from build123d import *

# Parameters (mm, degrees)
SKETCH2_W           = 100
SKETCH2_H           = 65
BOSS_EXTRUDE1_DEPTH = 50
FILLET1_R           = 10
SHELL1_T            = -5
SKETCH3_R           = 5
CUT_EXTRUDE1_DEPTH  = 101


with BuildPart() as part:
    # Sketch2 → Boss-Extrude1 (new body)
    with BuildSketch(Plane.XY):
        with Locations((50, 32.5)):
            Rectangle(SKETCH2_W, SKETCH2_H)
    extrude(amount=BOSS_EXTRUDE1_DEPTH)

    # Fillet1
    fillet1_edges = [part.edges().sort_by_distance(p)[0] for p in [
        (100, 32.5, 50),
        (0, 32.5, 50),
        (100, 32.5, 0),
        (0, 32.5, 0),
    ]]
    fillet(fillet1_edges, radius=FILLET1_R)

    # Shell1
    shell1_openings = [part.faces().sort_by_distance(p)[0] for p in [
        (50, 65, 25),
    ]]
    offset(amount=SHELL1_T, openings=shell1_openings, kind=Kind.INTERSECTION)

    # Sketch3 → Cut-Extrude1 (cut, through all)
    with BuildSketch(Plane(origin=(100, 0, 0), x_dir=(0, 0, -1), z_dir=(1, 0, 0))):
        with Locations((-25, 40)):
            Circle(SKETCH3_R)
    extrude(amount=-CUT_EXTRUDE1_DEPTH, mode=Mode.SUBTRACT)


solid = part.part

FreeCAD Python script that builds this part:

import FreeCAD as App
import Part
import Sketcher

V = App.Vector
Q = App.Units.Quantity


def edges_at(feature, points):
    """Names of the edges that pass closest to the given points."""
    edges = feature.Shape.Edges
    near = lambda p: min(range(len(edges)), key=lambda i: edges[i].distToShape(Part.Vertex(*p))[0])
    return sorted({f"Edge{near(p) + 1}" for p in points})


def faces_at(feature, points):
    """Names of the faces that lie closest to the given points."""
    faces = feature.Shape.Faces
    near = lambda p: min(range(len(faces)), key=lambda i: faces[i].distToShape(Part.Vertex(*p))[0])
    return sorted({f"Face{near(p) + 1}" for p in points})


def add_polygon(sketch, points):
    """Adds a closed chain of lines whose ends are joined by coincident constraints."""
    first, n = sketch.GeometryCount, len(points)
    for a, b in zip(points, points[1:] + points[:1]):
        sketch.addGeometry(Part.LineSegment(App.Vector(*a, 0), App.Vector(*b, 0)), False)
    for i in range(n):
        sketch.addConstraint(Sketcher.Constraint("Coincident", first + i, 2, first + (i + 1) % n, 1))

doc = App.newDocument("Part")
params = doc.addObject("Spreadsheet::Sheet", "Params")
for row, (alias, value) in enumerate([
    ("sketch1_width", "100 mm"),
    ("sketch1_height", "65 mm"),
    ("pad1_length", "50 mm"),
    ("fillet_radius", "10 mm"),
    ("thickness_wall", "5 mm"),
    ("sketch2_diameter", "10 mm"),
], start=1):
    params.set(f"A{row}", alias)
    params.set(f"B{row}", "=" + value)
    params.setAlias(f"B{row}", alias)

body = doc.addObject("PartDesign::Body", "Body")

# Sketch on XY plane
sketch1 = doc.addObject("Sketcher::SketchObject", "Sketch")
body.addObject(sketch1)
sketch1.AttachmentSupport = (doc.XY_Plane, [""])
sketch1.MapMode = "FlatFace"
add_polygon(sketch1, [(0, 65), (0, 0), (100, 0), (100, 65)])  # lines 0-3
sketch1.addConstraint(Sketcher.Constraint("Vertical", 0))
sketch1.addConstraint(Sketcher.Constraint("Horizontal", 1))
sketch1.addConstraint(Sketcher.Constraint("Vertical", 2))
sketch1.addConstraint(Sketcher.Constraint("Horizontal", 3))
sketch1.addConstraint(Sketcher.Constraint("Coincident", 0, 2, -1, 1))
sketch1.addConstraint(Sketcher.Constraint("DistanceX", 1, 1, 1, 2, Q("100 mm")))
sketch1.addConstraint(Sketcher.Constraint("DistanceY", 0, 2, 0, 1, Q("65 mm")))
sketch1.setExpression("Constraints[9]", "Params.sketch1_width")
sketch1.setExpression("Constraints[10]", "Params.sketch1_height")
pad1 = doc.addObject("PartDesign::Pad", "Pad")
body.addObject(pad1)
pad1.Profile = sketch1
pad1.setExpression("Length", "Params.pad1_length")
doc.recompute()

fillet = doc.addObject("PartDesign::Fillet", "Fillet")
body.addObject(fillet)
fillet.Base = (pad1, edges_at(pad1, [
    (100, 32.5, 50),
    (0, 32.5, 50),
    (100, 32.5, 0),
    (0, 32.5, 0),
]))
fillet.setExpression("Radius", "Params.fillet_radius")
doc.recompute()

thickness = doc.addObject("PartDesign::Thickness", "Thickness")
body.addObject(thickness)
thickness.Base = (fillet, faces_at(fillet, [(50, 65, 25)]))
thickness.setExpression("Value", "Params.thickness_wall")
thickness.Reversed = True
thickness.Join = "Intersection"

# Sketch on YZ plane
sketch2 = doc.addObject("Sketcher::SketchObject", "Sketch001")
body.addObject(sketch2)
sketch2.AttachmentSupport = (doc.YZ_Plane, [""])
sketch2.MapMode = "FlatFace"
sketch2.AttachmentOffset = App.Placement(V(0, 0, 100), App.Rotation())
sketch2.addGeometry(Part.Circle(V(40, 25, 0), V(0, 0, 1), 5), False)
sketch2.addConstraint(Sketcher.Constraint("Diameter", 0, Q("10 mm")))
sketch2.addConstraint(Sketcher.Constraint("DistanceX", -1, 1, 0, 3, Q("40 mm")))
sketch2.addConstraint(Sketcher.Constraint("DistanceY", -1, 1, 0, 3, Q("25 mm")))
sketch2.setExpression("Constraints[0]", "Params.sketch2_diameter")
pocket1 = doc.addObject("PartDesign::Pocket", "Pocket")
body.addObject(pocket1)
pocket1.Profile = sketch2
pocket1.Type = "ThroughAll"

doc.recompute()
